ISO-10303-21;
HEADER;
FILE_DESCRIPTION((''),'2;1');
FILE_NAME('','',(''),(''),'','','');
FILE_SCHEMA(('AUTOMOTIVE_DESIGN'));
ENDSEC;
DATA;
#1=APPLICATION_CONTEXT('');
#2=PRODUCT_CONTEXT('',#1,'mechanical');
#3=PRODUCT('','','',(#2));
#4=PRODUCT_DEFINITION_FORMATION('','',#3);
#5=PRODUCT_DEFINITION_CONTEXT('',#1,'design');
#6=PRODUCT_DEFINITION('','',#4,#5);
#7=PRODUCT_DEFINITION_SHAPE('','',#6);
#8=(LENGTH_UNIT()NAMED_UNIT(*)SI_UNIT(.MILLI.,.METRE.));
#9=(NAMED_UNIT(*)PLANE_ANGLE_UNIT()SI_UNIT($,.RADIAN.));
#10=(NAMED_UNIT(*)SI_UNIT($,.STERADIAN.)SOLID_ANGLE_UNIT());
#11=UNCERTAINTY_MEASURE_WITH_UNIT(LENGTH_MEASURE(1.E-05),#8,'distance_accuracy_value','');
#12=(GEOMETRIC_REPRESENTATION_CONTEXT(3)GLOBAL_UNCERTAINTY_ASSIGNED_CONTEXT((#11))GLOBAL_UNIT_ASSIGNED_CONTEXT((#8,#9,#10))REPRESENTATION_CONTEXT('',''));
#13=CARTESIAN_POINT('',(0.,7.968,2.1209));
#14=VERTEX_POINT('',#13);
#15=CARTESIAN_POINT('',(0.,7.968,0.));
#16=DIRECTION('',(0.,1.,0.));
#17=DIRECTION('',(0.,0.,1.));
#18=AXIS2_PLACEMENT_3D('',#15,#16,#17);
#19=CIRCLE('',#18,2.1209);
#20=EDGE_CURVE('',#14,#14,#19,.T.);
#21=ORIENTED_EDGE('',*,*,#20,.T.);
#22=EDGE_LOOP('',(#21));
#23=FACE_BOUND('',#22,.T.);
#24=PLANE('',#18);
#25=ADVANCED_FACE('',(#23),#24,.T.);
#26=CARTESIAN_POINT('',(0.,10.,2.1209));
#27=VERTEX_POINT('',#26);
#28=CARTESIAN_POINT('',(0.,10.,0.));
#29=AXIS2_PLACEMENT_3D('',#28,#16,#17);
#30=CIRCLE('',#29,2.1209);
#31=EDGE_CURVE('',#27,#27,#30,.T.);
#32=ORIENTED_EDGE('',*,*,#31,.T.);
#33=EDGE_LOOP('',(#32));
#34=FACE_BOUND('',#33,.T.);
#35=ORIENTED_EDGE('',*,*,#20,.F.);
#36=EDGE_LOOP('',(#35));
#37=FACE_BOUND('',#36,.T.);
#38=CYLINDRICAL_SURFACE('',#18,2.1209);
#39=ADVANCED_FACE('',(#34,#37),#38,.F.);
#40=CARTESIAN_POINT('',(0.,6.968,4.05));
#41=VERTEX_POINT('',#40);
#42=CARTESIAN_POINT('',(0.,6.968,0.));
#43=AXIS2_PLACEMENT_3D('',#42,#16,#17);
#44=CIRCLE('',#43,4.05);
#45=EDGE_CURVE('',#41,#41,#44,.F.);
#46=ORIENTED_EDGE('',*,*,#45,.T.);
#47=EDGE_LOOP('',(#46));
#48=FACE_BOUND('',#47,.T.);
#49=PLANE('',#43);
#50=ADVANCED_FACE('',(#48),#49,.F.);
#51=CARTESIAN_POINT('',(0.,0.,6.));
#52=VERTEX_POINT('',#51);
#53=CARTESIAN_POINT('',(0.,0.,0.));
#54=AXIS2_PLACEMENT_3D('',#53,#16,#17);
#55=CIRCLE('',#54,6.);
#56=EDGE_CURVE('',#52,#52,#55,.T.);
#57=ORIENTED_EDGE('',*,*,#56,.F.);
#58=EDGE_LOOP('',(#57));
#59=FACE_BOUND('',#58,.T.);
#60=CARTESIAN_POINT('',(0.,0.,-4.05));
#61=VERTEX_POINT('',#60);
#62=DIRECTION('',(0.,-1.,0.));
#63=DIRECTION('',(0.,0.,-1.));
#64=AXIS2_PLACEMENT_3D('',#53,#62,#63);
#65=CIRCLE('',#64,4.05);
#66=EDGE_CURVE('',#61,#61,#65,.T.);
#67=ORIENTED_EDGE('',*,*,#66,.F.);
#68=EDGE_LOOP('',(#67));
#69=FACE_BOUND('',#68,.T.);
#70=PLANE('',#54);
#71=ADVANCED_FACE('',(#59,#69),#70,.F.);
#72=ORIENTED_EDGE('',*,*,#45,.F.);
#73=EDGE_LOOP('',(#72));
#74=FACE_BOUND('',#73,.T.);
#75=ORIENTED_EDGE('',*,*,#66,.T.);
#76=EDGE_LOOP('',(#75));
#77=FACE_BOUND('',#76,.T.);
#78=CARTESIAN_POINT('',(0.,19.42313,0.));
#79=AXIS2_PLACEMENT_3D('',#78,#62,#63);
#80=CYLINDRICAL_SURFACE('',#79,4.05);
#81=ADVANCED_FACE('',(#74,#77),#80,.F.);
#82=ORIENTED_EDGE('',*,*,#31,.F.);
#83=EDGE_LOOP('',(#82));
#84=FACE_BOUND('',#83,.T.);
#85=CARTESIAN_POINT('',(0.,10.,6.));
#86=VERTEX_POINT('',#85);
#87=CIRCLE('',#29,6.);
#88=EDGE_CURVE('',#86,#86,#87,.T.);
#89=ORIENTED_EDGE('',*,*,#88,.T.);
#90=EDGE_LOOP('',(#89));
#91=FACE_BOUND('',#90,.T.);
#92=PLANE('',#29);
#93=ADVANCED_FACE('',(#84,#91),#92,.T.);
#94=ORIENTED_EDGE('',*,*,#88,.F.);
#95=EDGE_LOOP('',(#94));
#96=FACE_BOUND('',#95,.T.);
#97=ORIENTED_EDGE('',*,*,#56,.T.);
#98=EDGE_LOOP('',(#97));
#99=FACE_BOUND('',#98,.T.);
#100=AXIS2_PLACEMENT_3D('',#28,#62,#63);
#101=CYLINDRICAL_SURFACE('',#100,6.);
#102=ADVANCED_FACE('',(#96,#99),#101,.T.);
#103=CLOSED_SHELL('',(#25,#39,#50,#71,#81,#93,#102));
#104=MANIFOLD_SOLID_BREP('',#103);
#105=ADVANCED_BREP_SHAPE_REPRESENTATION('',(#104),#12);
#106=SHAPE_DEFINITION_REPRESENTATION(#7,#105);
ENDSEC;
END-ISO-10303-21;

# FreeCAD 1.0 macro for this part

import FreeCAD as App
import Part
import Sketcher
from FreeCAD import Vector
Q = App.Units.Quantity

doc = App.newDocument("Part")
body = doc.addObject("PartDesign::Body", "Body")

sketch1 = body.newObject("Sketcher::SketchObject", "Sketch")
sketch1.AttachmentSupport = (doc.getObject("XZ_Plane"), [""])
sketch1.MapMode = "FlatFace"
sketch1.addGeometry(Part.Circle(Vector(0, 0, 0), Vector(0, 0, 1), 6), False)
sketch1.addConstraint([
    Sketcher.Constraint("Coincident", 0, 3, -1, 1),
    Sketcher.Constraint("Diameter", 0, Q("12 mm")),
])
pad1 = body.newObject("PartDesign::Pad", "Pad")
pad1.Profile = sketch1
pad1.Length = 10
pad1.Reversed = True

sketch2 = body.newObject("Sketcher::SketchObject", "Sketch001")
sketch2.AttachmentSupport = (doc.getObject("XZ_Plane"), [""])
sketch2.MapMode = "FlatFace"
sketch2.AttachmentOffset = App.Placement(Vector(0, 0, -10), App.Rotation())
sketch2.addGeometry(Part.Circle(Vector(0, 0, 0), Vector(0, 0, 1), 2.1), False)
sketch2.addConstraint([
    Sketcher.Constraint("Coincident", 0, 3, -1, 1),
    Sketcher.Constraint("Diameter", 0, Q("4.2418 mm")),
])
pocket1 = body.newObject("PartDesign::Pocket", "Pocket")
pocket1.Profile = sketch2
pocket1.Length = 2.032
pocket1.Reversed = True

sketch3 = body.newObject("Sketcher::SketchObject", "Sketch002")
sketch3.AttachmentSupport = (doc.getObject("XZ_Plane"), [""])
sketch3.MapMode = "FlatFace"
sketch3.addGeometry(Part.Circle(Vector(0, 0, 0), Vector(0, 0, 1), 4), False)
sketch3.addConstraint([
    Sketcher.Constraint("Coincident", 0, 3, -1, 1),
    Sketcher.Constraint("Diameter", 0, Q("8.1 mm")),
])
pocket2 = body.newObject("PartDesign::Pocket", "Pocket001")
pocket2.Profile = sketch3
pocket2.Length = 6.968

doc.recompute()
